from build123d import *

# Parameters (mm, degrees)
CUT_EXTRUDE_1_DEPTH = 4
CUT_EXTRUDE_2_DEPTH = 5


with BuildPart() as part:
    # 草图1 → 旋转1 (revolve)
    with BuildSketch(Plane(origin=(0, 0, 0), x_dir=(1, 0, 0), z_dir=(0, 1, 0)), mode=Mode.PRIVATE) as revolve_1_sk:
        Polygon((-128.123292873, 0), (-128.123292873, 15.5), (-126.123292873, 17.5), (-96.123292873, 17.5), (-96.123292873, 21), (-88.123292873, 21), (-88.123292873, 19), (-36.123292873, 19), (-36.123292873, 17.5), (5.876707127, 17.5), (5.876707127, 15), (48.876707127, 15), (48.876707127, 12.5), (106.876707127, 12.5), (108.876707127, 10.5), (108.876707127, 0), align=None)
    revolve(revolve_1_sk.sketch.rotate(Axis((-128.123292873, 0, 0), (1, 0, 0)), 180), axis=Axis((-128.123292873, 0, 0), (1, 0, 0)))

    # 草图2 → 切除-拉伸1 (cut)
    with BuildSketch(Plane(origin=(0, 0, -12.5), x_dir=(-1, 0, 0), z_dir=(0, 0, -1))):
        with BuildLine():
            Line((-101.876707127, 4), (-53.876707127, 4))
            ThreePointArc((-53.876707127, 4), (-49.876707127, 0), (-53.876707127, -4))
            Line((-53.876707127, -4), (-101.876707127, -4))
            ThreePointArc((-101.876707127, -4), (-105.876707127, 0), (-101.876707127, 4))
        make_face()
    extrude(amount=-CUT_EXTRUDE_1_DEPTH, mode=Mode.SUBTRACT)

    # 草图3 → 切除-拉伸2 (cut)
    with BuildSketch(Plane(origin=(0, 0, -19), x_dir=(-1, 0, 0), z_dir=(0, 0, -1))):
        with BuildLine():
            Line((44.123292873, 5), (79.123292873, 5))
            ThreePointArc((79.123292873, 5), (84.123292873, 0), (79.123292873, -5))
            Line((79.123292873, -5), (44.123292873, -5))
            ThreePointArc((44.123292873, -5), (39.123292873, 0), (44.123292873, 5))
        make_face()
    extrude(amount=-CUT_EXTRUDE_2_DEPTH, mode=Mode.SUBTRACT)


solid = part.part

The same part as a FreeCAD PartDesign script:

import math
import FreeCAD as App
import Part
import Sketcher
Q = App.Units.Quantity


def add_polygon(sketch, points):
    """Adds a closed chain of lines whose ends are joined by coincident constraints."""
    first, n = sketch.GeometryCount, len(points)
    for a, b in zip(points, points[1:] + points[:1]):
        sketch.addGeometry(Part.LineSegment(App.Vector(*a, 0), App.Vector(*b, 0)), False)
    for i in range(n):
        sketch.addConstraint(Sketcher.Constraint("Coincident", first + i, 2, first + (i + 1) % n, 1))

doc = App.newDocument("Part")
body = doc.addObject("PartDesign::Body", "Body")

sketch1 = body.newObject("Sketcher::SketchObject", "Sketch")
sketch1.AttachmentSupport = (doc.getObject("XZ_Plane"), [""])
sketch1.MapMode = "FlatFace"
add_polygon(sketch1, [(-128.1, -15.5), (-128.1, 0), (108.9, 0), (108.9, -10.5), (106.9, -12.5), (48.9, -12.5), (48.9, -15), (5.9, -15), (5.9, -17.5), (-36.1, -17.5), (-36.1, -19), (-88.1, -19), (-88.1, -21), (-96.1, -21), (-96.1, -17.5), (-126.1, -17.5)])
sketch1.addConstraint(Sketcher.Constraint("Vertical", 0))
sketch1.addConstraint(Sketcher.Constraint("Horizontal", 1))
sketch1.addConstraint(Sketcher.Constraint("Vertical", 2))
sketch1.addConstraint(Sketcher.Constraint("Horizontal", 4))
sketch1.addConstraint(Sketcher.Constraint("Vertical", 5))
sketch1.addConstraint(Sketcher.Constraint("Horizontal", 6))
sketch1.addConstraint(Sketcher.Constraint("Vertical", 7))
sketch1.addConstraint(Sketcher.Constraint("Horizontal", 8))
sketch1.addConstraint(Sketcher.Constraint("Vertical", 9))
sketch1.addConstraint(Sketcher.Constraint("Horizontal", 10))
sketch1.addConstraint(Sketcher.Constraint("Vertical", 11))
sketch1.addConstraint(Sketcher.Constraint("Horizontal", 12))
sketch1.addConstraint(Sketcher.Constraint("Vertical", 13))
sketch1.addConstraint(Sketcher.Constraint("Horizontal", 14))
sketch1.addConstraint(Sketcher.Constraint("PointOnObject", 0, 2, -1))
sketch1.addConstraint(Sketcher.Constraint("Perpendicular", 3, 15))
sketch1.addConstraint(Sketcher.Constraint("Horizontal", 8, 2, 13, 2))
sketch1.addConstraint(Sketcher.Constraint("Equal", 5, 7))
sketch1.addConstraint(Sketcher.Constraint("Equal", 3, 15))
sketch1.addConstraint(Sketcher.Constraint("DistanceX", 1, 1, 1, 2, Q("237 mm")))
sketch1.addConstraint(Sketcher.Constraint("DistanceX", 4, 2, 4, 1, Q("58 mm")))
sketch1.addConstraint(Sketcher.Constraint("DistanceX", 6, 2, 6, 1, Q("43 mm")))
sketch1.addConstraint(Sketcher.Constraint("DistanceX", 8, 2, 8, 1, Q("42 mm")))
sketch1.addConstraint(Sketcher.Constraint("DistanceX", 10, 2, 10, 1, Q("52 mm")))
sketch1.addConstraint(Sketcher.Constraint("DistanceX", 12, 2, 12, 1, Q("8 mm")))
sketch1.addConstraint(Sketcher.Constraint("DistanceX", 14, 2, 14, 1, Q("30 mm")))
sketch1.addConstraint(Sketcher.Constraint("DistanceY", 11, 2, 11, 1, Q("2 mm")))
sketch1.addConstraint(Sketcher.Constraint("Angle", 3, Q("-135 deg")))
sketch1.addConstraint(Sketcher.Constraint("DistanceY", 0, 1, 0, 2, Q("15.5 mm")))
sketch1.addConstraint(Sketcher.Constraint("DistanceY", 2, 2, 2, 1, Q("10.5 mm")))
sketch1.addConstraint(Sketcher.Constraint("DistanceY", 9, 2, 9, 1, Q("1.5 mm")))
sketch1.addConstraint(Sketcher.Constraint("DistanceX", 0, 2, -1, 1, Q("128.123293 mm")))
revolution = body.newObject("PartDesign::Revolution", "Revolution")
revolution.Profile = sketch1
revolution.ReferenceAxis = (sketch1, ["H_Axis"])
revolution.Angle = 360

sketch2 = body.newObject("Sketcher::SketchObject", "Sketch001")
sketch2.AttachmentSupport = (doc.getObject("XY_Plane"), [""])
sketch2.MapMode = "FlatFace"
sketch2.AttachmentOffset = App.Placement(App.Vector(0, 0, -12.5), App.Rotation())
sketch2.addGeometry(Part.LineSegment(App.Vector(53.9, 4, 0), App.Vector(101.9, 4, 0)), False)
sketch2.addGeometry(Part.ArcOfCircle(Part.Circle(App.Vector(101.9, 0, 0), App.Vector(0, 0, 1), 4), math.radians(-90), math.radians(90)), False)
sketch2.addGeometry(Part.LineSegment(App.Vector(101.9, -4, 0), App.Vector(53.9, -4, 0)), False)
sketch2.addGeometry(Part.ArcOfCircle(Part.Circle(App.Vector(53.9, 0, 0), App.Vector(0, 0, 1), 4), math.radians(90), math.radians(270)), False)
sketch2.addConstraint(Sketcher.Constraint("Tangent", 0, 2, 1, 2))
sketch2.addConstraint(Sketcher.Constraint("Tangent", 1, 1, 2, 1))
sketch2.addConstraint(Sketcher.Constraint("Tangent", 2, 2, 3, 2))
sketch2.addConstraint(Sketcher.Constraint("Tangent", 3, 1, 0, 1))
sketch2.addConstraint(Sketcher.Constraint("Horizontal", 0))
sketch2.addConstraint(Sketcher.Constraint("Horizontal", 2))
sketch2.addConstraint(Sketcher.Constraint("PointOnObject", 1, 3, -1))
sketch2.addConstraint(Sketcher.Constraint("Radius", 1, Q("4 mm")))
sketch2.addConstraint(Sketcher.Constraint("DistanceX", 0, 1, 0, 2, Q("48 mm")))
sketch2.addConstraint(Sketcher.Constraint("DistanceX", -1, 1, 1, 3, Q("101.876707 mm")))
pocket1 = body.newObject("PartDesign::Pocket", "Pocket")
pocket1.Profile = sketch2
pocket1.Length = 4
pocket1.Reversed = True

sketch3 = body.newObject("Sketcher::SketchObject", "Sketch002")
sketch3.AttachmentSupport = (doc.getObject("XY_Plane"), [""])
sketch3.MapMode = "FlatFace"
sketch3.AttachmentOffset = App.Placement(App.Vector(0, 0, -19), App.Rotation())
sketch3.addGeometry(Part.LineSegment(App.Vector(-79, 5, 0), App.Vector(-44, 5, 0)), False)
sketch3.addGeometry(Part.ArcOfCircle(Part.Circle(App.Vector(-44, 0, 0), App.Vector(0, 0, 1), 5), math.radians(-90), math.radians(90)), False)
sketch3.addGeometry(Part.LineSegment(App.Vector(-44, -5, 0), App.Vector(-79, -5, 0)), False)
sketch3.addGeometry(Part.ArcOfCircle(Part.Circle(App.Vector(-79, 0, 0), App.Vector(0, 0, 1), 5), math.radians(90), math.radians(270)), False)
sketch3.addConstraint(Sketcher.Constraint("Tangent", 0, 2, 1, 2))
sketch3.addConstraint(Sketcher.Constraint("Tangent", 1, 1, 2, 1))
sketch3.addConstraint(Sketcher.Constraint("Tangent", 2, 2, 3, 2))
sketch3.addConstraint(Sketcher.Constraint("Tangent", 3, 1, 0, 1))
sketch3.addConstraint(Sketcher.Constraint("Horizontal", 0))
sketch3.addConstraint(Sketcher.Constraint("Horizontal", 2))
sketch3.addConstraint(Sketcher.Constraint("PointOnObject", 1, 3, -1))
sketch3.addConstraint(Sketcher.Constraint("Radius", 1, Q("5 mm")))
sketch3.addConstraint(Sketcher.Constraint("DistanceX", 0, 1, 0, 2, Q("35 mm")))
sketch3.addConstraint(Sketcher.Constraint("DistanceX", 1, 3, -1, 1, Q("44.123293 mm")))
pocket2 = body.newObject("PartDesign::Pocket", "Pocket001")
pocket2.Profile = sketch3
pocket2.Length = 5
pocket2.Reversed = True

doc.recompute()
